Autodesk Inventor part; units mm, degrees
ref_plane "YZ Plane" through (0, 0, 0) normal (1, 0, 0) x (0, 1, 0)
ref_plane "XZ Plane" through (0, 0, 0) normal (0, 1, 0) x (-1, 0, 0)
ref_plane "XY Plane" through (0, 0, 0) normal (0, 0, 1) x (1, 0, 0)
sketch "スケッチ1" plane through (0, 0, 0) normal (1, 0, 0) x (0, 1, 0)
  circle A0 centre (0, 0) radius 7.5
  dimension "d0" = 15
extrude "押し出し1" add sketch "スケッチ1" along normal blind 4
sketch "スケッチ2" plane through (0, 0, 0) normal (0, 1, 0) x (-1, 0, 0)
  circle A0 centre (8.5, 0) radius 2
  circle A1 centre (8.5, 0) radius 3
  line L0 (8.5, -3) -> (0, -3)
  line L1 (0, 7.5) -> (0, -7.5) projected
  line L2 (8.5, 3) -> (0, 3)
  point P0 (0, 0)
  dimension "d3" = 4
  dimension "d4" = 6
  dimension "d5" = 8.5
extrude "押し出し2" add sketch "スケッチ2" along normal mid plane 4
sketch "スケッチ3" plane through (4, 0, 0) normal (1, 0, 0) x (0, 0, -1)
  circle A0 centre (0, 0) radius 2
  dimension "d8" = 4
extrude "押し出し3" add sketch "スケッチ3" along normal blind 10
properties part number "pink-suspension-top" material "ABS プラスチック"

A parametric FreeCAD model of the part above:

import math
import FreeCAD as App
import Part
import Sketcher

V = App.Vector
Q = App.Units.Quantity

doc = App.newDocument("Part")
body = doc.addObject("PartDesign::Body", "Body")

# Sketch on YZ plane
sketch1 = doc.addObject("Sketcher::SketchObject", "Sketch")
body.addObject(sketch1)
sketch1.AttachmentSupport = (doc.YZ_Plane, [""])
sketch1.MapMode = "FlatFace"
sketch1.addGeometry(Part.Circle(V(0, 0, 0), V(0, 0, 1), 8), False)
sketch1.addConstraint(Sketcher.Constraint("Coincident", 0, 3, -1, 1))
sketch1.addConstraint(Sketcher.Constraint("Diameter", 0, Q("15 mm")))
pad1 = doc.addObject("PartDesign::Pad", "Pad")
body.addObject(pad1)
pad1.Profile = sketch1
pad1.Length = 4

# Sketch on XZ plane
sketch2 = doc.addObject("Sketcher::SketchObject", "Sketch001")
body.addObject(sketch2)
sketch2.AttachmentSupport = (doc.XZ_Plane, [""])
sketch2.MapMode = "FlatFace"
sketch2.addGeometry(Part.ArcOfCircle(Part.Circle(V(-8.5, 0, 0), V(0, 0, 1), 3), math.radians(90), math.radians(270)), False)
sketch2.addGeometry(Part.LineSegment(V(-8.5, 3, 0), V(0, 3, 0)), False)
sketch2.addGeometry(Part.LineSegment(V(0, 3, 0), V(0, -3, 0)), False)
sketch2.addGeometry(Part.LineSegment(V(0, -3, 0), V(-8.5, -3, 0)), False)
sketch2.addGeometry(Part.Circle(V(-8.5, 0, 0), V(0, 0, 1), 2), False)
sketch2.addConstraint(Sketcher.Constraint("Tangent", 0, 1, 1, 1))
sketch2.addConstraint(Sketcher.Constraint("Coincident", 1, 2, 2, 1))
sketch2.addConstraint(Sketcher.Constraint("Coincident", 2, 2, 3, 1))
sketch2.addConstraint(Sketcher.Constraint("Tangent", 3, 2, 0, 2))
sketch2.addConstraint(Sketcher.Constraint("Horizontal", 1))
sketch2.addConstraint(Sketcher.Constraint("Vertical", 2))
sketch2.addConstraint(Sketcher.Constraint("Horizontal", 3))
sketch2.addConstraint(Sketcher.Constraint("Coincident", 4, 3, 0, 3))
sketch2.addConstraint(Sketcher.Constraint("Symmetric", 1, 2, 2, 2, -1, 1))
sketch2.addConstraint(Sketcher.Constraint("Diameter", 4, Q("4 mm")))
sketch2.addConstraint(Sketcher.Constraint("Radius", 0, Q("3 mm")))
sketch2.addConstraint(Sketcher.Constraint("DistanceX", 1, 1, 1, 2, Q("8.5 mm")))
pad2 = doc.addObject("PartDesign::Pad", "Pad001")
body.addObject(pad2)
pad2.Profile = sketch2
pad2.Length = 4
pad2.Midplane = True

# Sketch on YZ plane
sketch3 = doc.addObject("Sketcher::SketchObject", "Sketch002")
body.addObject(sketch3)
sketch3.AttachmentSupport = (doc.YZ_Plane, [""])
sketch3.MapMode = "FlatFace"
sketch3.AttachmentOffset = App.Placement(V(0, 0, 4), App.Rotation())
sketch3.addGeometry(Part.Circle(V(0, 0, 0), V(0, 0, 1), 2), False)
sketch3.addConstraint(Sketcher.Constraint("Coincident", 0, 3, -1, 1))
sketch3.addConstraint(Sketcher.Constraint("Diameter", 0, Q("4 mm")))
pad3 = doc.addObject("PartDesign::Pad", "Pad002")
body.addObject(pad3)
pad3.Profile = sketch3
pad3.Length = 10

doc.recompute()
